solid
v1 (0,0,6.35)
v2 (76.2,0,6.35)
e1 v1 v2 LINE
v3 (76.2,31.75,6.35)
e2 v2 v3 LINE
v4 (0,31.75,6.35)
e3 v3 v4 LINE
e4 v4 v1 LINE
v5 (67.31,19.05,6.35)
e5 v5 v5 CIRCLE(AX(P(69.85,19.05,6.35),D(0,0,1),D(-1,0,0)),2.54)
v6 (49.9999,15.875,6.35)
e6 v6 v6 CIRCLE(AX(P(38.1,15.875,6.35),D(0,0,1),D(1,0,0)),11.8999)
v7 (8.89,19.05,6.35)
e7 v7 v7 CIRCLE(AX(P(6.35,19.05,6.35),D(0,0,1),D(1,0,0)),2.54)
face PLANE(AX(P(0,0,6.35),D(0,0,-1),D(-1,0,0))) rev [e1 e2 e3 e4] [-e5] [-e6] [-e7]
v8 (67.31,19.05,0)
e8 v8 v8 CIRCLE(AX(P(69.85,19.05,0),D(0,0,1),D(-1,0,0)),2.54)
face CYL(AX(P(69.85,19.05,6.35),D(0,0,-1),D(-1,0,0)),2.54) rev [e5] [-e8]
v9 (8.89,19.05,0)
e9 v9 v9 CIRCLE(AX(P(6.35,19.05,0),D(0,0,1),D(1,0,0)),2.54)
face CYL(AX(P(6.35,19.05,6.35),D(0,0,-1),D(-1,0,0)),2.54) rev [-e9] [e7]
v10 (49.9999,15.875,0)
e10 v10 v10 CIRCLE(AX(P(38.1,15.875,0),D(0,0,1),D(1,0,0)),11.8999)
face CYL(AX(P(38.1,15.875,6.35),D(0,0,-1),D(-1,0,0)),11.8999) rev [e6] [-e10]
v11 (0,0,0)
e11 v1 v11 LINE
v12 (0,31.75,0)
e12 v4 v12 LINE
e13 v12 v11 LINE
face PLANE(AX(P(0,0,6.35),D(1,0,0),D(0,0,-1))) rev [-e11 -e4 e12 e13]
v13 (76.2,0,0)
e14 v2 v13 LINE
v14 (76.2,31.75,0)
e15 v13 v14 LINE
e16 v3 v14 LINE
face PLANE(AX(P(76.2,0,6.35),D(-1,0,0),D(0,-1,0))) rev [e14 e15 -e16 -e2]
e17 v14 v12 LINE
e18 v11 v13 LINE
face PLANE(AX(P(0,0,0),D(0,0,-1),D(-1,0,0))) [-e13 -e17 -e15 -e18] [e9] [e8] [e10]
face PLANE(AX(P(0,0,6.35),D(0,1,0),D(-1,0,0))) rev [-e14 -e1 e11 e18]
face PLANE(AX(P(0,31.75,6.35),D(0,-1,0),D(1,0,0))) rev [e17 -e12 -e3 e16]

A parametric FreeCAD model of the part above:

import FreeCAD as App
import Part
import Sketcher

V = App.Vector
Q = App.Units.Quantity


def add_polygon(sketch, points):
    """Adds a closed chain of lines whose ends are joined by coincident constraints."""
    first, n = sketch.GeometryCount, len(points)
    for a, b in zip(points, points[1:] + points[:1]):
        sketch.addGeometry(Part.LineSegment(App.Vector(*a, 0), App.Vector(*b, 0)), False)
    for i in range(n):
        sketch.addConstraint(Sketcher.Constraint("Coincident", first + i, 2, first + (i + 1) % n, 1))

doc = App.newDocument("Part")
params = doc.addObject("Spreadsheet::Sheet", "Params")
for row, (alias, value) in enumerate([
    ("sketch1_diameter", "0.2 in"),
    ("sketch1_width", "3 in"),
    ("sketch1_diameter2", "0.937 in"),
    ("sketch1_height", "1.25 in"),
    ("pad1_length", "0.25 in"),
], start=1):
    params.set(f"A{row}", alias)
    params.set(f"B{row}", "=" + value)
    params.setAlias(f"B{row}", alias)

body = doc.addObject("PartDesign::Body", "Body")

sketch1 = body.newObject("Sketcher::SketchObject", "Sketch")
sketch1.AttachmentSupport = (doc.getObject("XY_Plane"), [""])
sketch1.MapMode = "FlatFace"
add_polygon(sketch1, [(0, 31.8), (0, 0), (76.2, 0), (76.2, 31.8)])
sketch1.addGeometry(Part.Circle(V(6.3, 19.1, 0), V(0, 0, 1), 2.5), False)
sketch1.addGeometry(Part.Circle(V(38.1, 15.9, 0), V(0, 0, 1), 11.9), False)
sketch1.addGeometry(Part.Circle(V(69.8, 19.1, 0), V(0, 0, 1), 2.5), False)
sketch1.addConstraint(Sketcher.Constraint("Vertical", 0))
sketch1.addConstraint(Sketcher.Constraint("Horizontal", 1))
sketch1.addConstraint(Sketcher.Constraint("Vertical", 2))
sketch1.addConstraint(Sketcher.Constraint("Horizontal", 3))
sketch1.addConstraint(Sketcher.Constraint("Coincident", 0, 2, -1, 1))
sketch1.addConstraint(Sketcher.Constraint("Equal", 4, 6))
sketch1.addConstraint(Sketcher.Constraint("Horizontal", 4, 3, 6, 3))
sketch1.addConstraint(Sketcher.Constraint("Diameter", 4, Q("0.2 in")))
sketch1.addConstraint(Sketcher.Constraint("DistanceX", 1, 1, 1, 2, Q("3 in")))
sketch1.addConstraint(Sketcher.Constraint("Diameter", 5, Q("0.937 in")))
sketch1.addConstraint(Sketcher.Constraint("DistanceY", 0, 2, 0, 1, Q("1.25 in")))
sketch1.addConstraint(Sketcher.Constraint("DistanceX", -1, 1, 5, 3, Q("1.5 in")))
sketch1.addConstraint(Sketcher.Constraint("DistanceX", 4, 3, 6, 3, Q("2.5 in")))
sketch1.addConstraint(Sketcher.Constraint("DistanceY", 6, 3, 2, 2, Q("0.5 in")))
sketch1.addConstraint(Sketcher.Constraint("DistanceX", -1, 1, 4, 3, Q("0.25 in")))
sketch1.addConstraint(Sketcher.Constraint("DistanceY", -1, 1, 5, 3, Q("0.625 in")))
sketch1.setExpression("Constraints[11]", "Params.sketch1_diameter")
sketch1.setExpression("Constraints[12]", "Params.sketch1_width")
sketch1.setExpression("Constraints[13]", "Params.sketch1_diameter2")
sketch1.setExpression("Constraints[14]", "Params.sketch1_height")
pad1 = body.newObject("PartDesign::Pad", "Pad")
pad1.Profile = sketch1
pad1.setExpression("Length", "Params.pad1_length")

doc.recompute()
